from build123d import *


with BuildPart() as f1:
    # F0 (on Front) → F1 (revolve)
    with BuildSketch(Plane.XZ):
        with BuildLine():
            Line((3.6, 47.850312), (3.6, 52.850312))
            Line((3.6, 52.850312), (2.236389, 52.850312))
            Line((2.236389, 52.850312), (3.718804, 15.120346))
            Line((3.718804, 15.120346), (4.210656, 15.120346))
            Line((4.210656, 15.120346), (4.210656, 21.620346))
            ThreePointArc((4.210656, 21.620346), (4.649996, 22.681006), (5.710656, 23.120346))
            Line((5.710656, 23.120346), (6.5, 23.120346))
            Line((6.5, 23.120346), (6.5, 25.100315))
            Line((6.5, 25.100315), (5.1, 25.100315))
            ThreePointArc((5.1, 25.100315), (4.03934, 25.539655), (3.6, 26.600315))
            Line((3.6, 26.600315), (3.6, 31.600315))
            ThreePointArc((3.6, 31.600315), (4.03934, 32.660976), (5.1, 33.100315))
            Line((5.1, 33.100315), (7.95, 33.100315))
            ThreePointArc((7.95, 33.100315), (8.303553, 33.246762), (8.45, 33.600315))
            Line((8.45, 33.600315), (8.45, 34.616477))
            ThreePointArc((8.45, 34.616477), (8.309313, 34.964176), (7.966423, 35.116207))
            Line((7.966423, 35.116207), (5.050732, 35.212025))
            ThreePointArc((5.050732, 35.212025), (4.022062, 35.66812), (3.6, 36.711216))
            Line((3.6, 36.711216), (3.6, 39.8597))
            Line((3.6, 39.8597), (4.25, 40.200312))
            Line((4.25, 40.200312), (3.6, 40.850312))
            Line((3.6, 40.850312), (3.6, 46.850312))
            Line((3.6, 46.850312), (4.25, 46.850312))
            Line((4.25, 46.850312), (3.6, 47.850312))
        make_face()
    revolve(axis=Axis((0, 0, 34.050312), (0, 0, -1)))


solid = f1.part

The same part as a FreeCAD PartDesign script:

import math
import FreeCAD as App
import Part
import Sketcher
from FreeCAD import Vector
Q = App.Units.Quantity

doc = App.newDocument("Part")
body = doc.addObject("PartDesign::Body", "Body")

sketch1 = body.newObject("Sketcher::SketchObject", "Sketch")
sketch1.AttachmentSupport = (doc.getObject("XZ_Plane"), [""])
sketch1.MapMode = "FlatFace"
sketch1.addGeometry([
    Part.LineSegment(Vector(3.6, 47.85, 0), Vector(3.6, 52.85, 0)),
    Part.LineSegment(Vector(3.6, 52.85, 0), Vector(2.24, 52.85, 0)),
    Part.LineSegment(Vector(2.24, 52.85, 0), Vector(3.72, 15.12, 0)),
    Part.LineSegment(Vector(3.72, 15.12, 0), Vector(4.21, 15.12, 0)),
    Part.LineSegment(Vector(4.21, 15.12, 0), Vector(4.21, 21.62, 0)),
    Part.ArcOfCircle(Part.Circle(Vector(5.71, 21.62, 0), Vector(0, 0, 1), 1.5), math.radians(90), math.radians(180)),
    Part.LineSegment(Vector(5.71, 23.12, 0), Vector(6.5, 23.12, 0)),
    Part.LineSegment(Vector(6.5, 23.12, 0), Vector(6.5, 25.1, 0)),
    Part.LineSegment(Vector(6.5, 25.1, 0), Vector(5.1, 25.1, 0)),
    Part.ArcOfCircle(Part.Circle(Vector(5.1, 26.6, 0), Vector(0, 0, 1), 1.5), math.radians(-180), math.radians(-90)),
    Part.LineSegment(Vector(3.6, 26.6, 0), Vector(3.6, 31.6, 0)),
    Part.ArcOfCircle(Part.Circle(Vector(5.1, 31.6, 0), Vector(0, 0, 1), 1.5), math.radians(90), math.radians(180)),
    Part.LineSegment(Vector(5.1, 33.1, 0), Vector(7.95, 33.1, 0)),
    Part.ArcOfCircle(Part.Circle(Vector(7.95, 33.6, 0), Vector(0, 0, 1), 0.5), math.radians(-90), math.radians(0)),
    Part.LineSegment(Vector(8.45, 33.6, 0), Vector(8.45, 34.62, 0)),
    Part.ArcOfCircle(Part.Circle(Vector(7.95, 34.62, 0), Vector(0, 0, 1), 0.5), math.radians(0), math.radians(88)),
    Part.LineSegment(Vector(7.97, 35.12, 0), Vector(5.05, 35.21, 0)),
    Part.ArcOfCircle(Part.Circle(Vector(5.1, 36.71, 0), Vector(0, 0, 1), 1.5), math.radians(-180), math.radians(-92)),
    Part.LineSegment(Vector(3.6, 36.71, 0), Vector(3.6, 39.86, 0)),
    Part.LineSegment(Vector(3.6, 39.86, 0), Vector(4.25, 40.2, 0)),
    Part.LineSegment(Vector(4.25, 40.2, 0), Vector(3.6, 40.85, 0)),
    Part.LineSegment(Vector(3.6, 40.85, 0), Vector(3.6, 46.85, 0)),
    Part.LineSegment(Vector(3.6, 46.85, 0), Vector(4.25, 46.85, 0)),
    Part.LineSegment(Vector(4.25, 46.85, 0), Vector(3.6, 47.85, 0)),
], False)
sketch1.addConstraint([
    Sketcher.Constraint("Coincident", 0, 2, 1, 1),
    Sketcher.Constraint("Coincident", 1, 2, 2, 1),
    Sketcher.Constraint("Coincident", 2, 2, 3, 1),
    Sketcher.Constraint("Coincident", 3, 2, 4, 1),
    Sketcher.Constraint("Tangent", 4, 2, 5, 2),
    Sketcher.Constraint("Tangent", 5, 1, 6, 1),
    Sketcher.Constraint("Coincident", 6, 2, 7, 1),
    Sketcher.Constraint("Coincident", 7, 2, 8, 1),
    Sketcher.Constraint("Tangent", 8, 2, 9, 2),
    Sketcher.Constraint("Tangent", 9, 1, 10, 1),
    Sketcher.Constraint("Tangent", 10, 2, 11, 2),
    Sketcher.Constraint("Tangent", 11, 1, 12, 1),
    Sketcher.Constraint("Coincident", 12, 2, 13, 1),
    Sketcher.Constraint("Coincident", 13, 2, 14, 1),
    Sketcher.Constraint("Coincident", 14, 2, 15, 1),
    Sketcher.Constraint("Tangent", 15, 2, 16, 1),
    Sketcher.Constraint("Tangent", 16, 2, 17, 2),
    Sketcher.Constraint("Tangent", 17, 1, 18, 1),
    Sketcher.Constraint("Coincident", 18, 2, 19, 1),
    Sketcher.Constraint("Coincident", 19, 2, 20, 1),
    Sketcher.Constraint("Coincident", 20, 2, 21, 1),
    Sketcher.Constraint("Coincident", 21, 2, 22, 1),
    Sketcher.Constraint("Coincident", 22, 2, 23, 1),
    Sketcher.Constraint("Coincident", 23, 2, 0, 1),
    Sketcher.Constraint("Vertical", 0),
    Sketcher.Constraint("Horizontal", 1),
    Sketcher.Constraint("Horizontal", 3),
    Sketcher.Constraint("Vertical", 4),
    Sketcher.Constraint("Horizontal", 6),
    Sketcher.Constraint("Vertical", 7),
    Sketcher.Constraint("Horizontal", 8),
    Sketcher.Constraint("Vertical", 10),
    Sketcher.Constraint("Horizontal", 12),
    Sketcher.Constraint("Vertical", 14),
    Sketcher.Constraint("Vertical", 18),
    Sketcher.Constraint("Vertical", 21),
    Sketcher.Constraint("Horizontal", 22),
    Sketcher.Constraint("Equal", 5, 9),
    Sketcher.Constraint("Equal", 9, 11),
    Sketcher.Constraint("Equal", 9, 17),
    Sketcher.Constraint("Horizontal", 15, 3, 14, 2),
    Sketcher.Constraint("Vertical", 9, 3, 17, 3),
    Sketcher.Constraint("Vertical", 0, 2, 9, 1),
    Sketcher.Constraint("Vertical", 15, 3, 12, 2),
    Sketcher.Constraint("Vertical", 18, 2, 20, 2),
    Sketcher.Constraint("Vertical", 19, 2, 22, 2),
    Sketcher.Constraint("Equal", 0, 10),
    Sketcher.Constraint("Radius", 5, Q("1.500001 mm")),
    Sketcher.Constraint("Radius", 13, Q("0.500001 mm")),
    Sketcher.Constraint("Radius", 15, Q("0.499999 mm")),
    Sketcher.Constraint("DistanceY", 0, 1, 0, 2, Q("5 mm")),
    Sketcher.Constraint("DistanceY", 21, 1, 21, 2, Q("6 mm")),
    Sketcher.Constraint("Angle", 20, Q("135 deg")),
    Sketcher.Constraint("DistanceX", 8, 2, 8, 1, Q("1.4 mm")),
    Sketcher.Constraint("DistanceY", 4, 1, 4, 2, Q("6.5 mm")),
    Sketcher.Constraint("DistanceY", 11, 3, 13, 2, Q("1.999999 mm")),
    Sketcher.Constraint("DistanceY", 21, 2, 0, 2, Q("6 mm")),
    Sketcher.Constraint("DistanceX", 12, 1, 12, 2, Q("2.85 mm")),
    Sketcher.Constraint("DistanceX", 22, 1, 22, 2, Q("0.65 mm")),
    Sketcher.Constraint("DistanceX", -1, 1, 9, 3, Q("5.100001 mm")),
    Sketcher.Constraint("Angle", 2, Q("-87.749999 deg")),
    Sketcher.Constraint("DistanceX", 1, 2, 1, 1, Q("1.363611 mm")),
    Sketcher.Constraint("DistanceY", 7, 1, 7, 2, Q("1.979969 mm")),
    Sketcher.Constraint("DistanceY", -1, 1, 18, 2, Q("39.8597 mm")),
    Sketcher.Constraint("DistanceY", 13, 3, 17, 3, Q("3.1109 mm")),
    Sketcher.Constraint("DistanceX", 3, 1, 3, 2, Q("0.491852 mm")),
    Sketcher.Constraint("DistanceX", 6, 1, 6, 2, Q("0.789344 mm")),
    Sketcher.Constraint("DistanceY", 14, 1, 14, 2, Q("1.016162 mm")),
    Sketcher.Constraint("DistanceY", 18, 1, 18, 2, Q("3.148484 mm")),
])
revolution = body.newObject("PartDesign::Revolution", "Revolution")
revolution.Profile = sketch1
revolution.ReferenceAxis = (sketch1, ["V_Axis"])
revolution.Angle = 360

doc.recompute()
